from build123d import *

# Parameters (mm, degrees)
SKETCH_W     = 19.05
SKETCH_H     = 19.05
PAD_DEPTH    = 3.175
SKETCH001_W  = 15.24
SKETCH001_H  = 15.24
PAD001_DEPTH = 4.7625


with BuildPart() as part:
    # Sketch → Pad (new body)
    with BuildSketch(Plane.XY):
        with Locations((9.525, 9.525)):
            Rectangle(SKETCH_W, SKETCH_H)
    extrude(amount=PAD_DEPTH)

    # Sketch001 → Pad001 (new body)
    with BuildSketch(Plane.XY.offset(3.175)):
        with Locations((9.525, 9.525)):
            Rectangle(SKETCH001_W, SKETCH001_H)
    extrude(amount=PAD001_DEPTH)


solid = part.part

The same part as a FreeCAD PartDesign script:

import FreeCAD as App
import Part
import Sketcher
Q = App.Units.Quantity


def add_polygon(sketch, points):
    """Adds a closed chain of lines whose ends are joined by coincident constraints."""
    first, n = sketch.GeometryCount, len(points)
    for a, b in zip(points, points[1:] + points[:1]):
        sketch.addGeometry(Part.LineSegment(App.Vector(*a, 0), App.Vector(*b, 0)), False)
    for i in range(n):
        sketch.addConstraint(Sketcher.Constraint("Coincident", first + i, 2, first + (i + 1) % n, 1))

doc = App.newDocument("Part")
body = doc.addObject("PartDesign::Body", "Body")

# Sketch on XY plane
sketch1 = doc.addObject("Sketcher::SketchObject", "Sketch")
body.addObject(sketch1)
sketch1.AttachmentSupport = (doc.XY_Plane, [""])
sketch1.MapMode = "FlatFace"
add_polygon(sketch1, [(0, 19.05), (0, 0), (19.05, 0), (19.05, 19.05)])  # lines 0-3
sketch1.addConstraint([
    Sketcher.Constraint("Vertical", 0),
    Sketcher.Constraint("Horizontal", 1),
    Sketcher.Constraint("Vertical", 2),
    Sketcher.Constraint("Horizontal", 3),
    Sketcher.Constraint("Coincident", 0, 2, -1, 1),
    Sketcher.Constraint("Equal", 3, 0),
    Sketcher.Constraint("DistanceX", 1, 1, 1, 2, Q("0.75 in")),
])
pad1 = doc.addObject("PartDesign::Pad", "Pad")
body.addObject(pad1)
pad1.Profile = sketch1
pad1.Length = Q("0.125 in")

# Sketch on XY plane
sketch2 = doc.addObject("Sketcher::SketchObject", "Sketch001")
body.addObject(sketch2)
sketch2.AttachmentSupport = (doc.XY_Plane, [""])
sketch2.MapMode = "FlatFace"
sketch2.AttachmentOffset = App.Placement(App.Vector(0, 0, 0.125 * 25.4), App.Rotation())
add_polygon(sketch2, [(1.905, 17.145), (1.905, 1.905), (17.145, 1.905), (17.145, 17.145)])  # lines 0-3
sketch2.addConstraint([
    Sketcher.Constraint("Vertical", 0),
    Sketcher.Constraint("Horizontal", 1),
    Sketcher.Constraint("Vertical", 2),
    Sketcher.Constraint("Horizontal", 3),
    Sketcher.Constraint("Equal", 3, 0),
    Sketcher.Constraint("DistanceX", 1, 1, 1, 2, Q("0.6 in")),
    Sketcher.Constraint("DistanceX", -1, 1, 0, 2, Q("0.075 in")),
    Sketcher.Constraint("DistanceY", -1, 1, 0, 2, Q("0.075 in")),
])
pad2 = doc.addObject("PartDesign::Pad", "Pad001")
body.addObject(pad2)
pad2.Profile = sketch2
pad2.Length = Q("0.1875 in")

doc.recompute()
